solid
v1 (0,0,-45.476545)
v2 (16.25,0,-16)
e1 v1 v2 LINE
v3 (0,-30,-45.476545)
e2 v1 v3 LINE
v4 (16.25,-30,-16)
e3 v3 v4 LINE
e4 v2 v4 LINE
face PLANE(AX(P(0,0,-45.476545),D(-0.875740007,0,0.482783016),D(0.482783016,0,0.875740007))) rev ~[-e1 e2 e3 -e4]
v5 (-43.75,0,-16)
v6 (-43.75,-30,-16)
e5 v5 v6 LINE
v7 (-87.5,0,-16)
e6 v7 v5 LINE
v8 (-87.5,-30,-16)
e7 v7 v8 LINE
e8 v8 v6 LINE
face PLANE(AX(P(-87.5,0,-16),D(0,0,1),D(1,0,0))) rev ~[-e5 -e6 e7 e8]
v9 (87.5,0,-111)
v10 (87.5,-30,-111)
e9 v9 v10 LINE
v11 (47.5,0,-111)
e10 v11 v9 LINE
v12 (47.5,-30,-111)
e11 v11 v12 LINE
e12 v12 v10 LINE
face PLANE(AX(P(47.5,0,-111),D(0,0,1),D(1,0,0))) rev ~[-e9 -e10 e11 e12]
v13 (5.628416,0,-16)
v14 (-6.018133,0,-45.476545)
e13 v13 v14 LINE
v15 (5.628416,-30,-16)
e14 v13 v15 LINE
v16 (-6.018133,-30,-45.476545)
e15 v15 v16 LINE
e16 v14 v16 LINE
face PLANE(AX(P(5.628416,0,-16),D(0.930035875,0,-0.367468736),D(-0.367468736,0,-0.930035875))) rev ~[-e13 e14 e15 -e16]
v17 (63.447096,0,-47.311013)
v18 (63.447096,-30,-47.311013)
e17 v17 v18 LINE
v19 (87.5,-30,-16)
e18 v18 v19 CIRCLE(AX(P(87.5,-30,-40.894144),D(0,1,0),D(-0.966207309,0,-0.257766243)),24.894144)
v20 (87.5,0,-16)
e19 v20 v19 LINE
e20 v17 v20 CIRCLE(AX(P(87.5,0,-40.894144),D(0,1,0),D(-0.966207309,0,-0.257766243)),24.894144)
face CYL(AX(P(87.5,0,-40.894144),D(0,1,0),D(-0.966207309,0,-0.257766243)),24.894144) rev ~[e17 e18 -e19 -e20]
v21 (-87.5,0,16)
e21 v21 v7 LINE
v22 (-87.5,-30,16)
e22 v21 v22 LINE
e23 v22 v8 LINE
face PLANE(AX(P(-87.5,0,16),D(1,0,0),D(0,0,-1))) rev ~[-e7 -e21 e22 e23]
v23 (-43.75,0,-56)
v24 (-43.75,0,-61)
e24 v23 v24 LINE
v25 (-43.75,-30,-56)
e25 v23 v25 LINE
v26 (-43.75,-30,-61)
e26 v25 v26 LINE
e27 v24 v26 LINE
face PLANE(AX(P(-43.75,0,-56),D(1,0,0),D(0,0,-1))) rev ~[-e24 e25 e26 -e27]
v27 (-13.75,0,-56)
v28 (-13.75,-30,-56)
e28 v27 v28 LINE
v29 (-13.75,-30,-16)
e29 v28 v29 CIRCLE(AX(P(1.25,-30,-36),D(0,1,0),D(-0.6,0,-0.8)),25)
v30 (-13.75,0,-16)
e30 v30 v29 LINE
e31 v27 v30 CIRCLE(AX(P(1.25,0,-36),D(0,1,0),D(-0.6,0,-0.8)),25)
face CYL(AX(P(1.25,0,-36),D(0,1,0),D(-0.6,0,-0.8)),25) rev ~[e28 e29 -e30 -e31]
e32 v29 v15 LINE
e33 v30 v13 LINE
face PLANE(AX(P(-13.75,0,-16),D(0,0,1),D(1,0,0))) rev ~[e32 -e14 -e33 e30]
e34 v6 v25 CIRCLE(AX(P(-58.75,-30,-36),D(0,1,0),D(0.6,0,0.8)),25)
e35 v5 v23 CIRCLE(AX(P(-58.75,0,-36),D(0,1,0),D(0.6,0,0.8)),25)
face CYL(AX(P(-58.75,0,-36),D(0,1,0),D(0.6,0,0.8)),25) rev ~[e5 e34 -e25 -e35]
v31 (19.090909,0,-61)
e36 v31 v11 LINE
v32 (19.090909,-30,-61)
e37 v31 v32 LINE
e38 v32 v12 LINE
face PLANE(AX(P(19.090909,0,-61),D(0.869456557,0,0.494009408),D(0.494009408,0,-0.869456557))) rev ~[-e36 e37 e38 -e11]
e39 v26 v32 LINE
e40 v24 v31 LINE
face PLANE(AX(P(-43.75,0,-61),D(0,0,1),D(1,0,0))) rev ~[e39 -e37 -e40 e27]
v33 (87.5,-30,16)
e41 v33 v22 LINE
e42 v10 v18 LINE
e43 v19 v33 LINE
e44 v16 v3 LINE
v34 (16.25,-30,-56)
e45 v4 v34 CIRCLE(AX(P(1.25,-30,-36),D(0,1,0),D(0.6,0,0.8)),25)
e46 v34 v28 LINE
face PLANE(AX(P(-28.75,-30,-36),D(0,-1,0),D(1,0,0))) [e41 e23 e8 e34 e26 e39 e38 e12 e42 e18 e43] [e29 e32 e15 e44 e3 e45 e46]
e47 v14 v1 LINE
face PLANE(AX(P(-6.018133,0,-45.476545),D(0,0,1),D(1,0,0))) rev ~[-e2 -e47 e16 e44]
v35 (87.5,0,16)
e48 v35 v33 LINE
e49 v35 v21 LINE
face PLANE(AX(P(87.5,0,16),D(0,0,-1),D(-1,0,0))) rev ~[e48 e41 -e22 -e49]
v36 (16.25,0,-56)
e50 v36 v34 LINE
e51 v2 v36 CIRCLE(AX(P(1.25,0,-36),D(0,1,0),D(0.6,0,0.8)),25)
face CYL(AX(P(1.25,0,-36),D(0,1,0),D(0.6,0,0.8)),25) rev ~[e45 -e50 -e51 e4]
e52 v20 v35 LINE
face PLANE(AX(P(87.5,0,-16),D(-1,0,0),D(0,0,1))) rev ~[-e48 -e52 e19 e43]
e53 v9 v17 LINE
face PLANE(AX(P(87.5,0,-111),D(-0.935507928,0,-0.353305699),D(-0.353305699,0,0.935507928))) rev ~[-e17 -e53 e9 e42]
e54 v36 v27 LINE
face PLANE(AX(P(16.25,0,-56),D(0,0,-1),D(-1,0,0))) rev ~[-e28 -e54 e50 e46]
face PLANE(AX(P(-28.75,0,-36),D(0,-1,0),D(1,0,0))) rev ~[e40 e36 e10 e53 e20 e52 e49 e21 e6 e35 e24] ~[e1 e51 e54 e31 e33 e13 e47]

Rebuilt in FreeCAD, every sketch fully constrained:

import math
import FreeCAD as App
import Part
import Sketcher
Q = App.Units.Quantity

doc = App.newDocument("Part")
body = doc.addObject("PartDesign::Body", "Body")

# Sketch on XZ plane
sketch1 = body.newObject("Sketcher::SketchObject", "Sketch")
sketch1.AttachmentSupport = (doc.getObject("XZ_Plane"), [""])
sketch1.MapMode = "FlatFace"
sketch1.addGeometry(Part.LineSegment(App.Vector(-43.75, -61, 0), App.Vector(19.090909, -61, 0)), False)
sketch1.addGeometry(Part.LineSegment(App.Vector(19.090909, -61, 0), App.Vector(47.5, -111, 0)), False)
sketch1.addGeometry(Part.LineSegment(App.Vector(47.5, -111, 0), App.Vector(87.5, -111, 0)), False)
sketch1.addGeometry(Part.LineSegment(App.Vector(87.5, -111, 0), App.Vector(63.447096, -47.311013, 0)), False)
sketch1.addGeometry(Part.ArcOfCircle(Part.Circle(App.Vector(87.5, -40.894144, 0), App.Vector(0, 0, 1), 24.894144), math.radians(90), math.radians(194.93756)), False)
sketch1.addGeometry(Part.LineSegment(App.Vector(87.5, -16, 0), App.Vector(87.5, 16, 0)), False)
sketch1.addGeometry(Part.LineSegment(App.Vector(87.5, 16, 0), App.Vector(-87.5, 16, 0)), False)
sketch1.addGeometry(Part.LineSegment(App.Vector(-87.5, 16, 0), App.Vector(-87.5, -16, 0)), False)
sketch1.addGeometry(Part.LineSegment(App.Vector(-87.5, -16, 0), App.Vector(-43.75, -16, 0)), False)
sketch1.addGeometry(Part.ArcOfCircle(Part.Circle(App.Vector(-58.75, -36, 0), App.Vector(0, 0, 1), 25), math.radians(-53.130102), math.radians(53.130102)), False)
sketch1.addGeometry(Part.LineSegment(App.Vector(-43.75, -56, 0), App.Vector(-43.75, -61, 0)), False)
sketch1.addGeometry(Part.ArcOfCircle(Part.Circle(App.Vector(1.25, -36, 0), App.Vector(0, 0, 1), 25), math.radians(-53.130102), math.radians(53.130102)), False)
sketch1.addGeometry(Part.LineSegment(App.Vector(16.25, -56, 0), App.Vector(-13.75, -56, 0)), False)
sketch1.addGeometry(Part.ArcOfCircle(Part.Circle(App.Vector(1.25, -36, 0), App.Vector(0, 0, 1), 25), math.radians(126.869898), math.radians(233.130102)), False)
sketch1.addGeometry(Part.LineSegment(App.Vector(-13.75, -16, 0), App.Vector(5.628416, -16, 0)), False)
sketch1.addGeometry(Part.LineSegment(App.Vector(5.628416, -16, 0), App.Vector(-6.018133, -45.476545, 0)), False)
sketch1.addGeometry(Part.LineSegment(App.Vector(-6.018133, -45.476545, 0), App.Vector(0, -45.476545, 0)), False)
sketch1.addGeometry(Part.LineSegment(App.Vector(0, -45.476545, 0), App.Vector(16.25, -16, 0)), False)
sketch1.addConstraint(Sketcher.Constraint("Coincident", 0, 2, 1, 1))
sketch1.addConstraint(Sketcher.Constraint("Coincident", 1, 2, 2, 1))
sketch1.addConstraint(Sketcher.Constraint("Coincident", 2, 2, 3, 1))
sketch1.addConstraint(Sketcher.Constraint("Coincident", 3, 2, 4, 2))
sketch1.addConstraint(Sketcher.Constraint("Coincident", 4, 1, 5, 1))
sketch1.addConstraint(Sketcher.Constraint("Coincident", 5, 2, 6, 1))
sketch1.addConstraint(Sketcher.Constraint("Coincident", 6, 2, 7, 1))
sketch1.addConstraint(Sketcher.Constraint("Coincident", 7, 2, 8, 1))
sketch1.addConstraint(Sketcher.Constraint("Coincident", 8, 2, 9, 2))
sketch1.addConstraint(Sketcher.Constraint("Coincident", 9, 1, 10, 1))
sketch1.addConstraint(Sketcher.Constraint("Coincident", 10, 2, 0, 1))
sketch1.addConstraint(Sketcher.Constraint("Coincident", 11, 1, 12, 1))
sketch1.addConstraint(Sketcher.Constraint("Coincident", 12, 2, 13, 2))
sketch1.addConstraint(Sketcher.Constraint("Coincident", 13, 1, 14, 1))
sketch1.addConstraint(Sketcher.Constraint("Coincident", 14, 2, 15, 1))
sketch1.addConstraint(Sketcher.Constraint("Coincident", 15, 2, 16, 1))
sketch1.addConstraint(Sketcher.Constraint("Coincident", 16, 2, 17, 1))
sketch1.addConstraint(Sketcher.Constraint("Coincident", 17, 2, 11, 2))
sketch1.addConstraint(Sketcher.Constraint("Horizontal", 0))
sketch1.addConstraint(Sketcher.Constraint("Horizontal", 2))
sketch1.addConstraint(Sketcher.Constraint("Vertical", 5))
sketch1.addConstraint(Sketcher.Constraint("Horizontal", 6))
sketch1.addConstraint(Sketcher.Constraint("Vertical", 7))
sketch1.addConstraint(Sketcher.Constraint("Horizontal", 8))
sketch1.addConstraint(Sketcher.Constraint("Vertical", 10))
sketch1.addConstraint(Sketcher.Constraint("Horizontal", 12))
sketch1.addConstraint(Sketcher.Constraint("Horizontal", 14))
sketch1.addConstraint(Sketcher.Constraint("Horizontal", 16))
sketch1.addConstraint(Sketcher.Constraint("Coincident", 13, 3, 11, 3))
sketch1.addConstraint(Sketcher.Constraint("Equal", 9, 11))
sketch1.addConstraint(Sketcher.Constraint("Equal", 11, 13))
sketch1.addConstraint(Sketcher.Constraint("Symmetric", 4, 1, 6, 2, -1, 1))
sketch1.addConstraint(Sketcher.Constraint("PointOnObject", 16, 2, -2))
sketch1.addConstraint(Sketcher.Constraint("Horizontal", 9, 3, 11, 3))
sketch1.addConstraint(Sketcher.Constraint("Horizontal", 4, 1, 7, 2))
sketch1.addConstraint(Sketcher.Constraint("Horizontal", 9, 1, 11, 1))
sketch1.addConstraint(Sketcher.Constraint("Horizontal", 8, 2, 13, 1))
sketch1.addConstraint(Sketcher.Constraint("Horizontal", 14, 2, 17, 2))
sketch1.addConstraint(Sketcher.Constraint("Vertical", 4, 3, 2, 2))
sketch1.addConstraint(Sketcher.Constraint("Vertical", 2, 2, 4, 1))
sketch1.addConstraint(Sketcher.Constraint("Vertical", 8, 2, 9, 1))
sketch1.addConstraint(Sketcher.Constraint("Radius", 9, Q("25 mm")))
sketch1.addConstraint(Sketcher.Constraint("DistanceX", 2, 1, 2, 2, Q("40 mm")))
sketch1.addConstraint(Sketcher.Constraint("DistanceX", 6, 2, 6, 1, Q("175 mm")))
sketch1.addConstraint(Sketcher.Constraint("DistanceX", 12, 2, 12, 1, Q("30 mm")))
sketch1.addConstraint(Sketcher.Constraint("DistanceY", 5, 1, 5, 2, Q("32 mm")))
sketch1.addConstraint(Sketcher.Constraint("DistanceY", 10, 2, 10, 1, Q("5 mm")))
sketch1.addConstraint(Sketcher.Constraint("DistanceY", 1, 2, -1, 1, Q("111 mm")))
sketch1.addConstraint(Sketcher.Constraint("DistanceX", 9, 3, 11, 3, Q("60 mm")))
sketch1.addConstraint(Sketcher.Constraint("DistanceX", 8, 1, 8, 2, Q("43.75 mm")))
sketch1.addConstraint(Sketcher.Constraint("Radius", 4, Q("24.894144 mm")))
sketch1.addConstraint(Sketcher.Constraint("DistanceX", 0, 1, 0, 2, Q("62.840909 mm")))
sketch1.addConstraint(Sketcher.Constraint("Distance", 3, Q("68.07958 mm")))
sketch1.addConstraint(Sketcher.Constraint("DistanceX", 14, 1, 14, 2, Q("19.378416 mm")))
sketch1.addConstraint(Sketcher.Constraint("DistanceX", 16, 1, 16, 2, Q("6.018133 mm")))
sketch1.addConstraint(Sketcher.Constraint("Distance", 15, Q("31.693987 mm")))
pad1 = body.newObject("PartDesign::Pad", "Pad")
pad1.Profile = sketch1
pad1.Length = 30

doc.recompute()
